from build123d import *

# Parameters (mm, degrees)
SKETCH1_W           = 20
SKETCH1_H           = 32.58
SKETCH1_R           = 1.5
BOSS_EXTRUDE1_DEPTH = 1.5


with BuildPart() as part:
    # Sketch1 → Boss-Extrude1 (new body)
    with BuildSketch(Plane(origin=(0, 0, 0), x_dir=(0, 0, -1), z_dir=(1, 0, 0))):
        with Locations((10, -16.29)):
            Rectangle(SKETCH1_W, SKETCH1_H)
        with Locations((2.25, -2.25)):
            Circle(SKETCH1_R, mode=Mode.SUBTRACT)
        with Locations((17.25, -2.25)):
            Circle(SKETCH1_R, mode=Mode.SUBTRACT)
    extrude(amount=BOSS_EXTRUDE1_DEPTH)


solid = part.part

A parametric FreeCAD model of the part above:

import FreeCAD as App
import Part
import Sketcher
Q = App.Units.Quantity


def add_polygon(sketch, points):
    """Adds a closed chain of lines whose ends are joined by coincident constraints."""
    first, n = sketch.GeometryCount, len(points)
    for a, b in zip(points, points[1:] + points[:1]):
        sketch.addGeometry(Part.LineSegment(App.Vector(*a, 0), App.Vector(*b, 0)), False)
    for i in range(n):
        sketch.addConstraint(Sketcher.Constraint("Coincident", first + i, 2, first + (i + 1) % n, 1))

doc = App.newDocument("Part")
body = doc.addObject("PartDesign::Body", "Body")

sketch1 = body.newObject("Sketcher::SketchObject", "Sketch")
sketch1.AttachmentSupport = (doc.getObject("YZ_Plane"), [""])
sketch1.MapMode = "FlatFace"
add_polygon(sketch1, [(0, 0), (-32.6, 0), (-32.6, -20), (0, -20)])
sketch1.addGeometry(Part.Circle(App.Vector(-2.2, -2.2, 0), App.Vector(0, 0, 1), 1.5), False)
sketch1.addGeometry(Part.Circle(App.Vector(-2.2, -17.2, 0), App.Vector(0, 0, 1), 1.5), False)
sketch1.addConstraint([
    Sketcher.Constraint("Horizontal", 0),
    Sketcher.Constraint("Vertical", 1),
    Sketcher.Constraint("Horizontal", 2),
    Sketcher.Constraint("Vertical", 3),
    Sketcher.Constraint("Coincident", 3, 2, -1, 1),
    Sketcher.Constraint("Equal", 4, 5),
    Sketcher.Constraint("Vertical", 4, 3, 5, 3),
    Sketcher.Constraint("Diameter", 4, Q("3 mm")),
    Sketcher.Constraint("DistanceY", 1, 2, 1, 1, Q("20 mm")),
    Sketcher.Constraint("DistanceY", 5, 3, 4, 3, Q("15 mm")),
    Sketcher.Constraint("DistanceX", 0, 2, 0, 1, Q("32.58 mm")),
    Sketcher.Constraint("DistanceX", 4, 3, -1, 1, Q("2.25 mm")),
    Sketcher.Constraint("DistanceY", 4, 3, -1, 1, Q("2.25 mm")),
])
pad1 = body.newObject("PartDesign::Pad", "Pad")
pad1.Profile = sketch1
pad1.Length = 1.5

doc.recompute()
